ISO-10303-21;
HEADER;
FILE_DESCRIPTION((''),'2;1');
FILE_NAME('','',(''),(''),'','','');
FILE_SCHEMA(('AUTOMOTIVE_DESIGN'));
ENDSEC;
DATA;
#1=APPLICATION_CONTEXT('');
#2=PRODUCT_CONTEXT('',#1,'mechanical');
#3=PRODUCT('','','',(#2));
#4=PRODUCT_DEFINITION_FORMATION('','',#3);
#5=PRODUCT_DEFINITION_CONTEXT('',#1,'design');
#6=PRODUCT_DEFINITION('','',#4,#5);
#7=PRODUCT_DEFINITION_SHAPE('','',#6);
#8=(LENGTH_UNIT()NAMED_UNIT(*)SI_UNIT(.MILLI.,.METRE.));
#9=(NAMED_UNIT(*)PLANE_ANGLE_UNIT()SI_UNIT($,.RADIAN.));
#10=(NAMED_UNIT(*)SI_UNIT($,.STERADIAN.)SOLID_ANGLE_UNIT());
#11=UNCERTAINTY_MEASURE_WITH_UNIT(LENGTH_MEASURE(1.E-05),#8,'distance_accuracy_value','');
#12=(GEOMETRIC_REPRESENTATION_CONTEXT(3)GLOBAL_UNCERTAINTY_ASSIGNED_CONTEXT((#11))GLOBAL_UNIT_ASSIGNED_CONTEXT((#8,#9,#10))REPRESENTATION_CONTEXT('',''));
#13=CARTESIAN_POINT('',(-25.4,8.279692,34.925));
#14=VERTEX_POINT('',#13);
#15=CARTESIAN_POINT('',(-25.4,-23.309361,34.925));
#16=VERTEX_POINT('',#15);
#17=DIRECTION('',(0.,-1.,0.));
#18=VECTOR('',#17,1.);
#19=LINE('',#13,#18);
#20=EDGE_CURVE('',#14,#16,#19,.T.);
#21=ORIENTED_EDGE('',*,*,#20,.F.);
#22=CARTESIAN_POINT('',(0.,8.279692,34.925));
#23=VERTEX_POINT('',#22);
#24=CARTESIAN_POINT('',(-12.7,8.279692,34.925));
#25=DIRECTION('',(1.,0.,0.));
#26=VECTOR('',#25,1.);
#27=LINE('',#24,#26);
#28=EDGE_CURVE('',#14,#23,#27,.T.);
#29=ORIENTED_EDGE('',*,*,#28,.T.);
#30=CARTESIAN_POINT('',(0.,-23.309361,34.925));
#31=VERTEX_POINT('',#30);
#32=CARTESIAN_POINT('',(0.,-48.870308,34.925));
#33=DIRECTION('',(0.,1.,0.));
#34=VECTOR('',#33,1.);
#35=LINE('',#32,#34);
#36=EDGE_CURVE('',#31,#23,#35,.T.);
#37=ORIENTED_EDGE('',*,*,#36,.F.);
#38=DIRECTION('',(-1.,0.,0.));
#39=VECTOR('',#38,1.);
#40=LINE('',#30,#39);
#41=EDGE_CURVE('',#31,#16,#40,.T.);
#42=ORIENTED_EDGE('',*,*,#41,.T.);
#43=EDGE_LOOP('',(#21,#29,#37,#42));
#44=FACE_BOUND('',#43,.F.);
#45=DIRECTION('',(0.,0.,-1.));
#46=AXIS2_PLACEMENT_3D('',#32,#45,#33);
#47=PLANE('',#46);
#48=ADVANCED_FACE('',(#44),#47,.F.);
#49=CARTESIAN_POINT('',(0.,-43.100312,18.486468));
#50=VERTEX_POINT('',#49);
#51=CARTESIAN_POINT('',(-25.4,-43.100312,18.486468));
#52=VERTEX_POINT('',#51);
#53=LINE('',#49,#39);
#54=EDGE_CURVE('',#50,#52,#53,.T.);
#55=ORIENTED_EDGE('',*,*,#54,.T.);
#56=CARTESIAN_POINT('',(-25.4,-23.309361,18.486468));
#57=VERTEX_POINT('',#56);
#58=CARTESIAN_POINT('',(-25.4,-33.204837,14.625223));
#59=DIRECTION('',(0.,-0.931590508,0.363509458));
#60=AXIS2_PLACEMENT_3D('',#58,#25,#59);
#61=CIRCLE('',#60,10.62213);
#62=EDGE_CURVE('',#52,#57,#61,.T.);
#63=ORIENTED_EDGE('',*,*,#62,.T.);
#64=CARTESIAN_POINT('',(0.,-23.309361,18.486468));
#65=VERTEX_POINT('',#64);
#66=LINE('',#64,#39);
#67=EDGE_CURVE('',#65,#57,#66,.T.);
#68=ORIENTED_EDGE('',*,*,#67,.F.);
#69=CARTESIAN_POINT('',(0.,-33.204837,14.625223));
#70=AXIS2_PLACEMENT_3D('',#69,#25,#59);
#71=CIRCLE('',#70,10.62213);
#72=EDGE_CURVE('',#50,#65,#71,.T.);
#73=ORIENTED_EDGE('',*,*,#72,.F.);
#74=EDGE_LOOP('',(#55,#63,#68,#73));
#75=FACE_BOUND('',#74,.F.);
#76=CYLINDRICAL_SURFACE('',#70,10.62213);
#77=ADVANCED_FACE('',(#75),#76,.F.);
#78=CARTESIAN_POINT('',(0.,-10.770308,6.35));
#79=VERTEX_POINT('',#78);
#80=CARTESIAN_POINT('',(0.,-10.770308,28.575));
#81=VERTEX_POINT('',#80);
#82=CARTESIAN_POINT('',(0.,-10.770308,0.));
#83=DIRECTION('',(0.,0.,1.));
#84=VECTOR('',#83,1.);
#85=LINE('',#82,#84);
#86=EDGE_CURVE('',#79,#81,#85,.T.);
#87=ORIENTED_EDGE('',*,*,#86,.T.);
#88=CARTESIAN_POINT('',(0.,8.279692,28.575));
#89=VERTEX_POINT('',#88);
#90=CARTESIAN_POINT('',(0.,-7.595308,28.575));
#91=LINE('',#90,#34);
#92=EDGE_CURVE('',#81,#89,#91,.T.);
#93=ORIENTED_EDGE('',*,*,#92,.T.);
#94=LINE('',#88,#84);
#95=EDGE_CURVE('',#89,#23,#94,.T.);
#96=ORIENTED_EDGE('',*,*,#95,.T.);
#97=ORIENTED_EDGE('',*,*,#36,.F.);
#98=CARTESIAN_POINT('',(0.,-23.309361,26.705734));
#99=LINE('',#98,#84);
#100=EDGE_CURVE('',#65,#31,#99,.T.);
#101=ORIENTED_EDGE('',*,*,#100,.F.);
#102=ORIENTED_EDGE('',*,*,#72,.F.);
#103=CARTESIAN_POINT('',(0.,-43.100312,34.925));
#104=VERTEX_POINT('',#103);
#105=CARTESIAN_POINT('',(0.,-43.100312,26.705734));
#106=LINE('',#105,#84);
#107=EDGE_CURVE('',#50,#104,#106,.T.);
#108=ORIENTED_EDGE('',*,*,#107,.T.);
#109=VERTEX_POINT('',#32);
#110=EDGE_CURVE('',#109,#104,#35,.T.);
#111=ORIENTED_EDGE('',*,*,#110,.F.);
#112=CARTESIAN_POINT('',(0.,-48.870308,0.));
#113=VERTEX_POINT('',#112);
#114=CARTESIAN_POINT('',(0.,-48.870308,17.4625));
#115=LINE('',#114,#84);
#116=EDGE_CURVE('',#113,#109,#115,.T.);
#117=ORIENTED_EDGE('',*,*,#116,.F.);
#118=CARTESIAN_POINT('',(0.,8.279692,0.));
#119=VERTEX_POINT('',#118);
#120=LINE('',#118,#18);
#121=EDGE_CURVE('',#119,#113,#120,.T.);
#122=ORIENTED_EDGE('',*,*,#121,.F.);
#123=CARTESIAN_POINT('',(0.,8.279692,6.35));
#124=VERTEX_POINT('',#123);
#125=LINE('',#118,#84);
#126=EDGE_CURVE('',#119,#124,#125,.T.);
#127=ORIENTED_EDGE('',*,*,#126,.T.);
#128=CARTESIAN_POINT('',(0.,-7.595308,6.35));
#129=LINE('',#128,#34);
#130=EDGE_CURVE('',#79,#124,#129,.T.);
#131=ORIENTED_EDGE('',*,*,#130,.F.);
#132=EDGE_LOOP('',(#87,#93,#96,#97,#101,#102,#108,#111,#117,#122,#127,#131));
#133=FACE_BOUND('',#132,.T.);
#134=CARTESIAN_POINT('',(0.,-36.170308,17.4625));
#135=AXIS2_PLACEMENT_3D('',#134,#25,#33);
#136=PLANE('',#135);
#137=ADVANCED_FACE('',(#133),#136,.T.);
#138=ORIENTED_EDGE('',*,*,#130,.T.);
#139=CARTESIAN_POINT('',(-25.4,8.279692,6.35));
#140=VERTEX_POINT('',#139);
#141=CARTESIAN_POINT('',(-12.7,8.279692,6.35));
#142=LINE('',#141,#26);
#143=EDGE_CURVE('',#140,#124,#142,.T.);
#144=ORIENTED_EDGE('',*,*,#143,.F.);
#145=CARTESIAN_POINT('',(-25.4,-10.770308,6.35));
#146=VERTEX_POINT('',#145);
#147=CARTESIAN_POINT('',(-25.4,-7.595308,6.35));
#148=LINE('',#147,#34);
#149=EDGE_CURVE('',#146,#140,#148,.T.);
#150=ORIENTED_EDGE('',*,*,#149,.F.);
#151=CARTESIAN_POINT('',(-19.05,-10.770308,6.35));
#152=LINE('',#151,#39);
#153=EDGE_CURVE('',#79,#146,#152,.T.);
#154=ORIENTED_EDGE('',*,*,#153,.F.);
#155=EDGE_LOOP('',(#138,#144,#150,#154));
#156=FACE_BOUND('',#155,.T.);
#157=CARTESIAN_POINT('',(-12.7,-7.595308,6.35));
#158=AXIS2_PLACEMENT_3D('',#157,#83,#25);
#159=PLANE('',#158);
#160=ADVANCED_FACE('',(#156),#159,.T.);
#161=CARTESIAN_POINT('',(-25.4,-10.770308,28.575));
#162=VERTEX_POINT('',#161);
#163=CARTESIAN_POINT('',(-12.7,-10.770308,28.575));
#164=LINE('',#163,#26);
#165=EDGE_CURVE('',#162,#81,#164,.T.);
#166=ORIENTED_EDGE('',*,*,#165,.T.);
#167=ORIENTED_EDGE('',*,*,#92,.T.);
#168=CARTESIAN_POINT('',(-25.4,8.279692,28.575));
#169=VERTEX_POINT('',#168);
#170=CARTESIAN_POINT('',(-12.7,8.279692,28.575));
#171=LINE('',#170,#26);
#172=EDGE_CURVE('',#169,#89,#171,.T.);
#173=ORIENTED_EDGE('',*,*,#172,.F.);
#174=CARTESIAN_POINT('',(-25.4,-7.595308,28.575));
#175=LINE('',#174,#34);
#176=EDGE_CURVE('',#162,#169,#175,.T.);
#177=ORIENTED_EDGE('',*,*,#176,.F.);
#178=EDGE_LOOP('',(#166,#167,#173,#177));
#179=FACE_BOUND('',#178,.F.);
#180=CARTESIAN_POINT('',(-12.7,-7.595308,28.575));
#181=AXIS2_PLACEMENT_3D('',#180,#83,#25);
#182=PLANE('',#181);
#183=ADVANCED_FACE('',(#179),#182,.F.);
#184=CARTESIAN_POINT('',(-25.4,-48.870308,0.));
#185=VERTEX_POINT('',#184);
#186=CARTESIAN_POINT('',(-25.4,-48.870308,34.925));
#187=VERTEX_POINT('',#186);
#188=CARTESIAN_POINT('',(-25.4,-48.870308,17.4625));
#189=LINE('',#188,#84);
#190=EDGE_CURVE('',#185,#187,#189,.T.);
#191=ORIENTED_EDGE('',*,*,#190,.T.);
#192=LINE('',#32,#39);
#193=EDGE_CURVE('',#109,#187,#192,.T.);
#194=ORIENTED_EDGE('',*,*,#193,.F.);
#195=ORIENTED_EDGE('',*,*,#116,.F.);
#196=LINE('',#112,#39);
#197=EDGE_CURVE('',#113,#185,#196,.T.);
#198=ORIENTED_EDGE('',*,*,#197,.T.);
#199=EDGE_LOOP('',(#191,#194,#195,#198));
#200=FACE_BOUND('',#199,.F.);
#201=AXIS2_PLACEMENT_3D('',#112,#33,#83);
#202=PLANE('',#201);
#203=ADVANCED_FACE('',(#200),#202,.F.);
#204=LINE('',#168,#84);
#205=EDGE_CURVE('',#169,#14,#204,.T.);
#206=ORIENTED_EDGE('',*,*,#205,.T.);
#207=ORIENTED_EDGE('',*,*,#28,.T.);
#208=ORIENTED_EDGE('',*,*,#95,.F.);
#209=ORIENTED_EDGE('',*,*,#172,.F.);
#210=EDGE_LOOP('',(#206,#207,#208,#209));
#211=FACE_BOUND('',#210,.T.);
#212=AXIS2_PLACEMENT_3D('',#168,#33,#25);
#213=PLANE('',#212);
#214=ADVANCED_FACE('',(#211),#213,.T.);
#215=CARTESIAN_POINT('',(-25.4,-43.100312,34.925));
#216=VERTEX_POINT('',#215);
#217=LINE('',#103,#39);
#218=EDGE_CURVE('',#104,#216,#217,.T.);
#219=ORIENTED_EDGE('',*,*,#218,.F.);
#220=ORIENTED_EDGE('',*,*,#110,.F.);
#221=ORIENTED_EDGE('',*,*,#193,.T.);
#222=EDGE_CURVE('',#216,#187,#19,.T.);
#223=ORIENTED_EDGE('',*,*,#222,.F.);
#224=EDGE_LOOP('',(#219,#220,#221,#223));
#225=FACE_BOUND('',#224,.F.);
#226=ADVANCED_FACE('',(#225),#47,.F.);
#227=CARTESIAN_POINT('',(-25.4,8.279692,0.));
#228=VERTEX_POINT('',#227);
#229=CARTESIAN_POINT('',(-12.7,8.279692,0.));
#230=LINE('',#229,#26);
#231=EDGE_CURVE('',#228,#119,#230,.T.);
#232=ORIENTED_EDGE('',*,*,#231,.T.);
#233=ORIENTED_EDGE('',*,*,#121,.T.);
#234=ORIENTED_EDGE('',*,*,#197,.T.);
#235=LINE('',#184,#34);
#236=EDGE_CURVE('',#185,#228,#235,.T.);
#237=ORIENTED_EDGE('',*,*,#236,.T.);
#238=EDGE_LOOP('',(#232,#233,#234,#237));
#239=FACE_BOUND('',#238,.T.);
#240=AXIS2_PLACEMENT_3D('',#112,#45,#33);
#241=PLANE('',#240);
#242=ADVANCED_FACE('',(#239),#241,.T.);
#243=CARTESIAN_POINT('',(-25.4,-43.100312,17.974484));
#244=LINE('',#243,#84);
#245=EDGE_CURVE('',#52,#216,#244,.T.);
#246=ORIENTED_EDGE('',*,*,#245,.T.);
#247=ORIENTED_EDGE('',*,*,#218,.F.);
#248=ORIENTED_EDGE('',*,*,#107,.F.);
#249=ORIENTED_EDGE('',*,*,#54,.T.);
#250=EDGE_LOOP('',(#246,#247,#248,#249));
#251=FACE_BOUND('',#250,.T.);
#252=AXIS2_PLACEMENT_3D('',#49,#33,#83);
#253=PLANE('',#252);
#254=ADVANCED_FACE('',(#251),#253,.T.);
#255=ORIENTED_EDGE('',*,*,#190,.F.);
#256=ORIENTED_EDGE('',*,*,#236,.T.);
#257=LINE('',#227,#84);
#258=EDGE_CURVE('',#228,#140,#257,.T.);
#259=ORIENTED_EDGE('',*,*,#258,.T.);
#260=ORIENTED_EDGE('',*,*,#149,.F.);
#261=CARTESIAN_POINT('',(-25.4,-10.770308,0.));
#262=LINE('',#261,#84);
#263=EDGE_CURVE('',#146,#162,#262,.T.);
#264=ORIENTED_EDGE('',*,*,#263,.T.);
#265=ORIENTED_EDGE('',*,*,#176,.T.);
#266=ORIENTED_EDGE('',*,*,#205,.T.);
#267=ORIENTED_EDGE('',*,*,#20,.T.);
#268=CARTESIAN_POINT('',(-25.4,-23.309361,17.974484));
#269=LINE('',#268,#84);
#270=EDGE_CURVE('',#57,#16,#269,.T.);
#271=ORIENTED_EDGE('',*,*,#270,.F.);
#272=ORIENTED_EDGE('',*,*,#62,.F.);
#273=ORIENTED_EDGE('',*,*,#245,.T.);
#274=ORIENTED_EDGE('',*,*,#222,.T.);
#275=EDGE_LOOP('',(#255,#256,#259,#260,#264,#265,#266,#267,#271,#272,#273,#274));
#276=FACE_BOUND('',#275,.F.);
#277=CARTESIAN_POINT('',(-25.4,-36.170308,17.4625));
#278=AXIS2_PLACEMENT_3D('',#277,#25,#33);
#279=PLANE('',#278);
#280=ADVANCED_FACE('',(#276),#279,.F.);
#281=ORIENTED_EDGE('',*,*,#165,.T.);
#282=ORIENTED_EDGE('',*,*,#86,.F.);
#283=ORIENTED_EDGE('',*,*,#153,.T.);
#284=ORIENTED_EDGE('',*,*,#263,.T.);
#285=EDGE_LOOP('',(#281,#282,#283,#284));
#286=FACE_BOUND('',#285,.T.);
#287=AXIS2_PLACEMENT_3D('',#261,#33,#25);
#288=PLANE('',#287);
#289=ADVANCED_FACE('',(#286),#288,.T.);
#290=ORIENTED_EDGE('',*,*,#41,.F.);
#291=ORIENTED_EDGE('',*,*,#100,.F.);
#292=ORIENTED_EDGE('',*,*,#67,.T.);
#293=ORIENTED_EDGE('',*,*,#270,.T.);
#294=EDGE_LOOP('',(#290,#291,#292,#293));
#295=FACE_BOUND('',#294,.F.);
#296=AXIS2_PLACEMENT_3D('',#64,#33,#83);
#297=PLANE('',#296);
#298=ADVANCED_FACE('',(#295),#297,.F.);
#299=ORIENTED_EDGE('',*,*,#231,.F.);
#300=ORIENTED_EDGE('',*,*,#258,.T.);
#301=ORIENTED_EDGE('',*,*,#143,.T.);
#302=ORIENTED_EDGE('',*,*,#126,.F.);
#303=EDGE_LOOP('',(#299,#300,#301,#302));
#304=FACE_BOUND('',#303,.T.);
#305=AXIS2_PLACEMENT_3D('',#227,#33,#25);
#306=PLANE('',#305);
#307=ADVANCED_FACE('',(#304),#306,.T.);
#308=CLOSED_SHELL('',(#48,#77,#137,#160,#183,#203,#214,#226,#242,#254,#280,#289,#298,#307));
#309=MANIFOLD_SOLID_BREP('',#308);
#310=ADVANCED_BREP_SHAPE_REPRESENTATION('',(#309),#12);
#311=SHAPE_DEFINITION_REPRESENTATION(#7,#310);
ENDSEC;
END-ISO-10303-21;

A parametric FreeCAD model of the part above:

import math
import FreeCAD as App
import Part
import Sketcher

V = App.Vector
Q = App.Units.Quantity


def add_polygon(sketch, points):
    """Adds a closed chain of lines whose ends are joined by coincident constraints."""
    first, n = sketch.GeometryCount, len(points)
    for a, b in zip(points, points[1:] + points[:1]):
        sketch.addGeometry(Part.LineSegment(App.Vector(*a, 0), App.Vector(*b, 0)), False)
    for i in range(n):
        sketch.addConstraint(Sketcher.Constraint("Coincident", first + i, 2, first + (i + 1) % n, 1))

doc = App.newDocument("Part")
body = doc.addObject("PartDesign::Body", "Body")

# Sketch on XY plane
sketch1 = body.newObject("Sketcher::SketchObject", "Sketch")
sketch1.AttachmentSupport = (doc.getObject("XY_Plane"), [""])
sketch1.MapMode = "FlatFace"
add_polygon(sketch1, [(-25, 8), (-25, -23), (0, -23), (0, 8)])  # lines 0-3
sketch1.addConstraint([
    Sketcher.Constraint("Vertical", 0),
    Sketcher.Constraint("Horizontal", 1),
    Sketcher.Constraint("Vertical", 2),
    Sketcher.Constraint("Horizontal", 3),
    Sketcher.Constraint("PointOnObject", 1, 2, -2),
    Sketcher.Constraint("DistanceX", 1, 1, 1, 2, Q("1 in")),
    Sketcher.Constraint("DistanceY", 0, 2, 0, 1, Q("1.25 in")),
    Sketcher.Constraint("DistanceY", 0, 2, -1, 1, 23.470308),
])
pad1 = body.newObject("PartDesign::Pad", "Pad")
pad1.Profile = sketch1
pad1.Length = Q("0.25 in")

# Sketch on XY plane
sketch2 = body.newObject("Sketcher::SketchObject", "Sketch001")
sketch2.AttachmentSupport = (doc.getObject("XY_Plane"), [""])
sketch2.MapMode = "FlatFace"
add_polygon(sketch2, [(-25, -11), (-25, -23), (0, -23), (0, -11)])  # lines 0-3
sketch2.addConstraint([
    Sketcher.Constraint("Vertical", 0),
    Sketcher.Constraint("Horizontal", 1),
    Sketcher.Constraint("Vertical", 2),
    Sketcher.Constraint("Horizontal", 3),
    Sketcher.Constraint("PointOnObject", 1, 2, -2),
    Sketcher.Constraint("DistanceX", 1, 1, 1, 2, Q("1 in")),
    Sketcher.Constraint("DistanceY", 0, 2, 0, 1, Q("0.5 in")),
    Sketcher.Constraint("DistanceY", 0, 2, -1, 1, 23.470308),
])
pad2 = body.newObject("PartDesign::Pad", "Pad001")
pad2.Profile = sketch2
pad2.Length = Q("1.125 in")

# Sketch on XY plane
sketch3 = body.newObject("Sketcher::SketchObject", "Sketch002")
sketch3.AttachmentSupport = (doc.getObject("XY_Plane"), [""])
sketch3.MapMode = "FlatFace"
sketch3.AttachmentOffset = App.Placement(V(0, 0, 1.125 * 25.4), App.Rotation())
add_polygon(sketch3, [(-25, 8), (-25, -23), (0, -23), (0, 8)])  # lines 0-3
sketch3.addConstraint([
    Sketcher.Constraint("Vertical", 0),
    Sketcher.Constraint("Horizontal", 1),
    Sketcher.Constraint("Vertical", 2),
    Sketcher.Constraint("Horizontal", 3),
    Sketcher.Constraint("PointOnObject", 1, 2, -2),
    Sketcher.Constraint("DistanceX", 1, 1, 1, 2, Q("1 in")),
    Sketcher.Constraint("DistanceY", 0, 2, 0, 1, Q("1.25 in")),
    Sketcher.Constraint("DistanceY", 0, 2, -1, 1, 23.470308),
])
pad3 = body.newObject("PartDesign::Pad", "Pad002")
pad3.Profile = sketch3
pad3.Length = Q("0.25 in")

# Sketch on YZ plane
sketch4 = body.newObject("Sketcher::SketchObject", "Sketch003")
sketch4.AttachmentSupport = (doc.getObject("YZ_Plane"), [""])
sketch4.MapMode = "FlatFace"
add_polygon(sketch4, [(-49, 35), (-49, 0), (-23, 0), (-23, 35)])  # lines 0-3
sketch4.addConstraint([
    Sketcher.Constraint("Vertical", 0),
    Sketcher.Constraint("Horizontal", 1),
    Sketcher.Constraint("Vertical", 2),
    Sketcher.Constraint("Horizontal", 3),
    Sketcher.Constraint("PointOnObject", 0, 2, -1),
    Sketcher.Constraint("DistanceX", 1, 1, 1, 2, Q("1 in")),
    Sketcher.Constraint("DistanceY", 0, 2, 0, 1, Q("1.375 in")),
    Sketcher.Constraint("DistanceX", 0, 2, -1, 1, 48.870308),
])
pad4 = body.newObject("PartDesign::Pad", "Pad003")
pad4.Profile = sketch4
pad4.Length = Q("1 in")
pad4.Reversed = True

# Sketch on YZ plane
sketch5 = body.newObject("Sketcher::SketchObject", "Sketch004")
sketch5.AttachmentSupport = (doc.getObject("YZ_Plane"), [""])
sketch5.MapMode = "FlatFace"
sketch5.addGeometry([
    Part.LineSegment(V(-43, 35, 0), V(-43, 18, 0)),
    Part.ArcOfCircle(Part.Circle(V(-33, 15, 0), V(0, 0, 1), 11), math.radians(159), math.radians(381)),
    Part.LineSegment(V(-23, 18, 0), V(-23, 35, 0)),
    Part.LineSegment(V(-23, 35, 0), V(-43, 35, 0)),
], False)
sketch5.addConstraint([
    Sketcher.Constraint("Coincident", 0, 2, 1, 1),
    Sketcher.Constraint("Coincident", 1, 2, 2, 1),
    Sketcher.Constraint("Coincident", 2, 2, 3, 1),
    Sketcher.Constraint("Coincident", 3, 2, 0, 1),
    Sketcher.Constraint("Vertical", 0),
    Sketcher.Constraint("Vertical", 2),
    Sketcher.Constraint("Horizontal", 3),
    Sketcher.Constraint("Horizontal", 0, 2, 1, 2),
    Sketcher.Constraint("DistanceY", -1, 1, 2, 2, Q("1.375 in")),
    Sketcher.Constraint("Radius", 1, 10.62213),
    Sketcher.Constraint("DistanceX", 3, 2, 3, 1, 19.790951),
    Sketcher.Constraint("DistanceY", 0, 2, 0, 1, 16.438532),
    Sketcher.Constraint("DistanceX", 1, 2, -1, 1, 23.309361),
])
pocket1 = body.newObject("PartDesign::Pocket", "Pocket")
pocket1.Profile = sketch5
pocket1.Length = Q("1.33 in")

doc.recompute()
